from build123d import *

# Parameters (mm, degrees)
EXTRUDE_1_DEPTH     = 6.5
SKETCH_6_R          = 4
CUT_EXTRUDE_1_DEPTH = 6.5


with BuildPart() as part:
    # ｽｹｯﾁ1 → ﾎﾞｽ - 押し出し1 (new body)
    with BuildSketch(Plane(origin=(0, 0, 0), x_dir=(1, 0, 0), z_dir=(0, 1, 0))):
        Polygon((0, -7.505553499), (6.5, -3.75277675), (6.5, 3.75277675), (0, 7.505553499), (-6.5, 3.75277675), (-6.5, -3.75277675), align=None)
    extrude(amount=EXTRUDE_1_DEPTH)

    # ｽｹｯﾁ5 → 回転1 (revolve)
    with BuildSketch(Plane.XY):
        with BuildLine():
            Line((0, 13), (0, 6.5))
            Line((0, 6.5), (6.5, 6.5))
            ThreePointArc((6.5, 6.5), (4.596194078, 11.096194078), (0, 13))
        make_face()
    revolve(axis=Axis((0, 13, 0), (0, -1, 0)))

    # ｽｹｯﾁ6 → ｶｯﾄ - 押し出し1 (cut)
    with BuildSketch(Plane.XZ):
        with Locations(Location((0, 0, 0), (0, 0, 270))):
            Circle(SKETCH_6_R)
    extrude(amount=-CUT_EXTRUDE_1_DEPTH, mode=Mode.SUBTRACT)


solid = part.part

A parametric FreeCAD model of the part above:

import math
import FreeCAD as App
import Part
import Sketcher
Q = App.Units.Quantity

doc = App.newDocument("Part")
body = doc.addObject("PartDesign::Body", "Body")

sketch1 = doc.addObject("Sketcher::SketchObject", "Sketch")
body.addObject(sketch1)
sketch1.AttachmentSupport = (doc.XZ_Plane, [""])
sketch1.MapMode = "FlatFace"
sketch1.addGeometry(Part.LineSegment(App.Vector(0, 8, 0), App.Vector(6, 4, 0)), False)
sketch1.addGeometry(Part.LineSegment(App.Vector(6, 4, 0), App.Vector(6, -4, 0)), False)
sketch1.addGeometry(Part.LineSegment(App.Vector(6, -4, 0), App.Vector(0, -8, 0)), False)
sketch1.addGeometry(Part.LineSegment(App.Vector(0, -8, 0), App.Vector(-6, -4, 0)), False)
sketch1.addGeometry(Part.LineSegment(App.Vector(-6, -4, 0), App.Vector(-6, 4, 0)), False)
sketch1.addGeometry(Part.LineSegment(App.Vector(-6, 4, 0), App.Vector(0, 8, 0)), False)
sketch1.addConstraint(Sketcher.Constraint("Coincident", 0, 2, 1, 1))
sketch1.addConstraint(Sketcher.Constraint("Coincident", 1, 2, 2, 1))
sketch1.addConstraint(Sketcher.Constraint("Coincident", 2, 2, 3, 1))
sketch1.addConstraint(Sketcher.Constraint("Coincident", 3, 2, 4, 1))
sketch1.addConstraint(Sketcher.Constraint("Coincident", 4, 2, 5, 1))
sketch1.addConstraint(Sketcher.Constraint("Coincident", 5, 2, 0, 1))
sketch1.addConstraint(Sketcher.Constraint("Vertical", 1))
sketch1.addConstraint(Sketcher.Constraint("Vertical", 4))
sketch1.addConstraint(Sketcher.Constraint("Symmetric", 0, 2, 3, 2, -1, 1))
sketch1.addConstraint(Sketcher.Constraint("Symmetric", 2, 2, 5, 2, -1, 1))
sketch1.addConstraint(Sketcher.Constraint("PointOnObject", 2, 2, -2))
sketch1.addConstraint(Sketcher.Constraint("Parallel", 2, 5))
sketch1.addConstraint(Sketcher.Constraint("Horizontal", 1, 2, 3, 2))
sketch1.addConstraint(Sketcher.Constraint("Angle", 0, Q("-30 deg")))
sketch1.addConstraint(Sketcher.Constraint("DistanceX", 3, 2, 1, 2, 13.0))
sketch1.addConstraint(Sketcher.Constraint("DistanceY", 1, 2, 1, 1, 7.505554))
pad1 = doc.addObject("PartDesign::Pad", "Pad")
body.addObject(pad1)
pad1.Profile = sketch1
pad1.Length = 6.5
pad1.Reversed = True

sketch2 = doc.addObject("Sketcher::SketchObject", "Sketch001")
body.addObject(sketch2)
sketch2.AttachmentSupport = (doc.XY_Plane, [""])
sketch2.MapMode = "FlatFace"
sketch2.addGeometry(Part.LineSegment(App.Vector(0, 13, 0), App.Vector(0, 6, 0)), False)
sketch2.addGeometry(Part.LineSegment(App.Vector(0, 6, 0), App.Vector(6, 6, 0)), False)
sketch2.addGeometry(Part.ArcOfCircle(Part.Circle(App.Vector(0, 7, 0), App.Vector(0, 0, 1), 6), math.radians(0), math.radians(90)), False)
sketch2.addConstraint(Sketcher.Constraint("Coincident", 0, 2, 1, 1))
sketch2.addConstraint(Sketcher.Constraint("Coincident", 1, 2, 2, 1))
sketch2.addConstraint(Sketcher.Constraint("Coincident", 2, 2, 0, 1))
sketch2.addConstraint(Sketcher.Constraint("Vertical", 0))
sketch2.addConstraint(Sketcher.Constraint("Horizontal", 1))
sketch2.addConstraint(Sketcher.Constraint("Coincident", 0, 2, 2, 3))
sketch2.addConstraint(Sketcher.Constraint("PointOnObject", 2, 3, -2))
sketch2.addConstraint(Sketcher.Constraint("Radius", 2, 6.5))
sketch2.addConstraint(Sketcher.Constraint("DistanceY", -1, 1, 2, 2, 13.0))
revolution = doc.addObject("PartDesign::Revolution", "Revolution")
body.addObject(revolution)
revolution.Profile = sketch2
revolution.ReferenceAxis = (sketch2, ["V_Axis"])
revolution.Angle = 360

sketch3 = doc.addObject("Sketcher::SketchObject", "Sketch002")
body.addObject(sketch3)
sketch3.AttachmentSupport = (doc.XZ_Plane, [""])
sketch3.MapMode = "FlatFace"
sketch3.addGeometry(Part.Circle(App.Vector(0, 0, 0), App.Vector(0, 0, 1), 4), False)
sketch3.addConstraint(Sketcher.Constraint("Coincident", 0, 3, -1, 1))
sketch3.addConstraint(Sketcher.Constraint("Diameter", 0, 8.0))
pocket1 = doc.addObject("PartDesign::Pocket", "Pocket")
body.addObject(pocket1)
pocket1.Profile = sketch3
pocket1.Length = 6.5

doc.recompute()
